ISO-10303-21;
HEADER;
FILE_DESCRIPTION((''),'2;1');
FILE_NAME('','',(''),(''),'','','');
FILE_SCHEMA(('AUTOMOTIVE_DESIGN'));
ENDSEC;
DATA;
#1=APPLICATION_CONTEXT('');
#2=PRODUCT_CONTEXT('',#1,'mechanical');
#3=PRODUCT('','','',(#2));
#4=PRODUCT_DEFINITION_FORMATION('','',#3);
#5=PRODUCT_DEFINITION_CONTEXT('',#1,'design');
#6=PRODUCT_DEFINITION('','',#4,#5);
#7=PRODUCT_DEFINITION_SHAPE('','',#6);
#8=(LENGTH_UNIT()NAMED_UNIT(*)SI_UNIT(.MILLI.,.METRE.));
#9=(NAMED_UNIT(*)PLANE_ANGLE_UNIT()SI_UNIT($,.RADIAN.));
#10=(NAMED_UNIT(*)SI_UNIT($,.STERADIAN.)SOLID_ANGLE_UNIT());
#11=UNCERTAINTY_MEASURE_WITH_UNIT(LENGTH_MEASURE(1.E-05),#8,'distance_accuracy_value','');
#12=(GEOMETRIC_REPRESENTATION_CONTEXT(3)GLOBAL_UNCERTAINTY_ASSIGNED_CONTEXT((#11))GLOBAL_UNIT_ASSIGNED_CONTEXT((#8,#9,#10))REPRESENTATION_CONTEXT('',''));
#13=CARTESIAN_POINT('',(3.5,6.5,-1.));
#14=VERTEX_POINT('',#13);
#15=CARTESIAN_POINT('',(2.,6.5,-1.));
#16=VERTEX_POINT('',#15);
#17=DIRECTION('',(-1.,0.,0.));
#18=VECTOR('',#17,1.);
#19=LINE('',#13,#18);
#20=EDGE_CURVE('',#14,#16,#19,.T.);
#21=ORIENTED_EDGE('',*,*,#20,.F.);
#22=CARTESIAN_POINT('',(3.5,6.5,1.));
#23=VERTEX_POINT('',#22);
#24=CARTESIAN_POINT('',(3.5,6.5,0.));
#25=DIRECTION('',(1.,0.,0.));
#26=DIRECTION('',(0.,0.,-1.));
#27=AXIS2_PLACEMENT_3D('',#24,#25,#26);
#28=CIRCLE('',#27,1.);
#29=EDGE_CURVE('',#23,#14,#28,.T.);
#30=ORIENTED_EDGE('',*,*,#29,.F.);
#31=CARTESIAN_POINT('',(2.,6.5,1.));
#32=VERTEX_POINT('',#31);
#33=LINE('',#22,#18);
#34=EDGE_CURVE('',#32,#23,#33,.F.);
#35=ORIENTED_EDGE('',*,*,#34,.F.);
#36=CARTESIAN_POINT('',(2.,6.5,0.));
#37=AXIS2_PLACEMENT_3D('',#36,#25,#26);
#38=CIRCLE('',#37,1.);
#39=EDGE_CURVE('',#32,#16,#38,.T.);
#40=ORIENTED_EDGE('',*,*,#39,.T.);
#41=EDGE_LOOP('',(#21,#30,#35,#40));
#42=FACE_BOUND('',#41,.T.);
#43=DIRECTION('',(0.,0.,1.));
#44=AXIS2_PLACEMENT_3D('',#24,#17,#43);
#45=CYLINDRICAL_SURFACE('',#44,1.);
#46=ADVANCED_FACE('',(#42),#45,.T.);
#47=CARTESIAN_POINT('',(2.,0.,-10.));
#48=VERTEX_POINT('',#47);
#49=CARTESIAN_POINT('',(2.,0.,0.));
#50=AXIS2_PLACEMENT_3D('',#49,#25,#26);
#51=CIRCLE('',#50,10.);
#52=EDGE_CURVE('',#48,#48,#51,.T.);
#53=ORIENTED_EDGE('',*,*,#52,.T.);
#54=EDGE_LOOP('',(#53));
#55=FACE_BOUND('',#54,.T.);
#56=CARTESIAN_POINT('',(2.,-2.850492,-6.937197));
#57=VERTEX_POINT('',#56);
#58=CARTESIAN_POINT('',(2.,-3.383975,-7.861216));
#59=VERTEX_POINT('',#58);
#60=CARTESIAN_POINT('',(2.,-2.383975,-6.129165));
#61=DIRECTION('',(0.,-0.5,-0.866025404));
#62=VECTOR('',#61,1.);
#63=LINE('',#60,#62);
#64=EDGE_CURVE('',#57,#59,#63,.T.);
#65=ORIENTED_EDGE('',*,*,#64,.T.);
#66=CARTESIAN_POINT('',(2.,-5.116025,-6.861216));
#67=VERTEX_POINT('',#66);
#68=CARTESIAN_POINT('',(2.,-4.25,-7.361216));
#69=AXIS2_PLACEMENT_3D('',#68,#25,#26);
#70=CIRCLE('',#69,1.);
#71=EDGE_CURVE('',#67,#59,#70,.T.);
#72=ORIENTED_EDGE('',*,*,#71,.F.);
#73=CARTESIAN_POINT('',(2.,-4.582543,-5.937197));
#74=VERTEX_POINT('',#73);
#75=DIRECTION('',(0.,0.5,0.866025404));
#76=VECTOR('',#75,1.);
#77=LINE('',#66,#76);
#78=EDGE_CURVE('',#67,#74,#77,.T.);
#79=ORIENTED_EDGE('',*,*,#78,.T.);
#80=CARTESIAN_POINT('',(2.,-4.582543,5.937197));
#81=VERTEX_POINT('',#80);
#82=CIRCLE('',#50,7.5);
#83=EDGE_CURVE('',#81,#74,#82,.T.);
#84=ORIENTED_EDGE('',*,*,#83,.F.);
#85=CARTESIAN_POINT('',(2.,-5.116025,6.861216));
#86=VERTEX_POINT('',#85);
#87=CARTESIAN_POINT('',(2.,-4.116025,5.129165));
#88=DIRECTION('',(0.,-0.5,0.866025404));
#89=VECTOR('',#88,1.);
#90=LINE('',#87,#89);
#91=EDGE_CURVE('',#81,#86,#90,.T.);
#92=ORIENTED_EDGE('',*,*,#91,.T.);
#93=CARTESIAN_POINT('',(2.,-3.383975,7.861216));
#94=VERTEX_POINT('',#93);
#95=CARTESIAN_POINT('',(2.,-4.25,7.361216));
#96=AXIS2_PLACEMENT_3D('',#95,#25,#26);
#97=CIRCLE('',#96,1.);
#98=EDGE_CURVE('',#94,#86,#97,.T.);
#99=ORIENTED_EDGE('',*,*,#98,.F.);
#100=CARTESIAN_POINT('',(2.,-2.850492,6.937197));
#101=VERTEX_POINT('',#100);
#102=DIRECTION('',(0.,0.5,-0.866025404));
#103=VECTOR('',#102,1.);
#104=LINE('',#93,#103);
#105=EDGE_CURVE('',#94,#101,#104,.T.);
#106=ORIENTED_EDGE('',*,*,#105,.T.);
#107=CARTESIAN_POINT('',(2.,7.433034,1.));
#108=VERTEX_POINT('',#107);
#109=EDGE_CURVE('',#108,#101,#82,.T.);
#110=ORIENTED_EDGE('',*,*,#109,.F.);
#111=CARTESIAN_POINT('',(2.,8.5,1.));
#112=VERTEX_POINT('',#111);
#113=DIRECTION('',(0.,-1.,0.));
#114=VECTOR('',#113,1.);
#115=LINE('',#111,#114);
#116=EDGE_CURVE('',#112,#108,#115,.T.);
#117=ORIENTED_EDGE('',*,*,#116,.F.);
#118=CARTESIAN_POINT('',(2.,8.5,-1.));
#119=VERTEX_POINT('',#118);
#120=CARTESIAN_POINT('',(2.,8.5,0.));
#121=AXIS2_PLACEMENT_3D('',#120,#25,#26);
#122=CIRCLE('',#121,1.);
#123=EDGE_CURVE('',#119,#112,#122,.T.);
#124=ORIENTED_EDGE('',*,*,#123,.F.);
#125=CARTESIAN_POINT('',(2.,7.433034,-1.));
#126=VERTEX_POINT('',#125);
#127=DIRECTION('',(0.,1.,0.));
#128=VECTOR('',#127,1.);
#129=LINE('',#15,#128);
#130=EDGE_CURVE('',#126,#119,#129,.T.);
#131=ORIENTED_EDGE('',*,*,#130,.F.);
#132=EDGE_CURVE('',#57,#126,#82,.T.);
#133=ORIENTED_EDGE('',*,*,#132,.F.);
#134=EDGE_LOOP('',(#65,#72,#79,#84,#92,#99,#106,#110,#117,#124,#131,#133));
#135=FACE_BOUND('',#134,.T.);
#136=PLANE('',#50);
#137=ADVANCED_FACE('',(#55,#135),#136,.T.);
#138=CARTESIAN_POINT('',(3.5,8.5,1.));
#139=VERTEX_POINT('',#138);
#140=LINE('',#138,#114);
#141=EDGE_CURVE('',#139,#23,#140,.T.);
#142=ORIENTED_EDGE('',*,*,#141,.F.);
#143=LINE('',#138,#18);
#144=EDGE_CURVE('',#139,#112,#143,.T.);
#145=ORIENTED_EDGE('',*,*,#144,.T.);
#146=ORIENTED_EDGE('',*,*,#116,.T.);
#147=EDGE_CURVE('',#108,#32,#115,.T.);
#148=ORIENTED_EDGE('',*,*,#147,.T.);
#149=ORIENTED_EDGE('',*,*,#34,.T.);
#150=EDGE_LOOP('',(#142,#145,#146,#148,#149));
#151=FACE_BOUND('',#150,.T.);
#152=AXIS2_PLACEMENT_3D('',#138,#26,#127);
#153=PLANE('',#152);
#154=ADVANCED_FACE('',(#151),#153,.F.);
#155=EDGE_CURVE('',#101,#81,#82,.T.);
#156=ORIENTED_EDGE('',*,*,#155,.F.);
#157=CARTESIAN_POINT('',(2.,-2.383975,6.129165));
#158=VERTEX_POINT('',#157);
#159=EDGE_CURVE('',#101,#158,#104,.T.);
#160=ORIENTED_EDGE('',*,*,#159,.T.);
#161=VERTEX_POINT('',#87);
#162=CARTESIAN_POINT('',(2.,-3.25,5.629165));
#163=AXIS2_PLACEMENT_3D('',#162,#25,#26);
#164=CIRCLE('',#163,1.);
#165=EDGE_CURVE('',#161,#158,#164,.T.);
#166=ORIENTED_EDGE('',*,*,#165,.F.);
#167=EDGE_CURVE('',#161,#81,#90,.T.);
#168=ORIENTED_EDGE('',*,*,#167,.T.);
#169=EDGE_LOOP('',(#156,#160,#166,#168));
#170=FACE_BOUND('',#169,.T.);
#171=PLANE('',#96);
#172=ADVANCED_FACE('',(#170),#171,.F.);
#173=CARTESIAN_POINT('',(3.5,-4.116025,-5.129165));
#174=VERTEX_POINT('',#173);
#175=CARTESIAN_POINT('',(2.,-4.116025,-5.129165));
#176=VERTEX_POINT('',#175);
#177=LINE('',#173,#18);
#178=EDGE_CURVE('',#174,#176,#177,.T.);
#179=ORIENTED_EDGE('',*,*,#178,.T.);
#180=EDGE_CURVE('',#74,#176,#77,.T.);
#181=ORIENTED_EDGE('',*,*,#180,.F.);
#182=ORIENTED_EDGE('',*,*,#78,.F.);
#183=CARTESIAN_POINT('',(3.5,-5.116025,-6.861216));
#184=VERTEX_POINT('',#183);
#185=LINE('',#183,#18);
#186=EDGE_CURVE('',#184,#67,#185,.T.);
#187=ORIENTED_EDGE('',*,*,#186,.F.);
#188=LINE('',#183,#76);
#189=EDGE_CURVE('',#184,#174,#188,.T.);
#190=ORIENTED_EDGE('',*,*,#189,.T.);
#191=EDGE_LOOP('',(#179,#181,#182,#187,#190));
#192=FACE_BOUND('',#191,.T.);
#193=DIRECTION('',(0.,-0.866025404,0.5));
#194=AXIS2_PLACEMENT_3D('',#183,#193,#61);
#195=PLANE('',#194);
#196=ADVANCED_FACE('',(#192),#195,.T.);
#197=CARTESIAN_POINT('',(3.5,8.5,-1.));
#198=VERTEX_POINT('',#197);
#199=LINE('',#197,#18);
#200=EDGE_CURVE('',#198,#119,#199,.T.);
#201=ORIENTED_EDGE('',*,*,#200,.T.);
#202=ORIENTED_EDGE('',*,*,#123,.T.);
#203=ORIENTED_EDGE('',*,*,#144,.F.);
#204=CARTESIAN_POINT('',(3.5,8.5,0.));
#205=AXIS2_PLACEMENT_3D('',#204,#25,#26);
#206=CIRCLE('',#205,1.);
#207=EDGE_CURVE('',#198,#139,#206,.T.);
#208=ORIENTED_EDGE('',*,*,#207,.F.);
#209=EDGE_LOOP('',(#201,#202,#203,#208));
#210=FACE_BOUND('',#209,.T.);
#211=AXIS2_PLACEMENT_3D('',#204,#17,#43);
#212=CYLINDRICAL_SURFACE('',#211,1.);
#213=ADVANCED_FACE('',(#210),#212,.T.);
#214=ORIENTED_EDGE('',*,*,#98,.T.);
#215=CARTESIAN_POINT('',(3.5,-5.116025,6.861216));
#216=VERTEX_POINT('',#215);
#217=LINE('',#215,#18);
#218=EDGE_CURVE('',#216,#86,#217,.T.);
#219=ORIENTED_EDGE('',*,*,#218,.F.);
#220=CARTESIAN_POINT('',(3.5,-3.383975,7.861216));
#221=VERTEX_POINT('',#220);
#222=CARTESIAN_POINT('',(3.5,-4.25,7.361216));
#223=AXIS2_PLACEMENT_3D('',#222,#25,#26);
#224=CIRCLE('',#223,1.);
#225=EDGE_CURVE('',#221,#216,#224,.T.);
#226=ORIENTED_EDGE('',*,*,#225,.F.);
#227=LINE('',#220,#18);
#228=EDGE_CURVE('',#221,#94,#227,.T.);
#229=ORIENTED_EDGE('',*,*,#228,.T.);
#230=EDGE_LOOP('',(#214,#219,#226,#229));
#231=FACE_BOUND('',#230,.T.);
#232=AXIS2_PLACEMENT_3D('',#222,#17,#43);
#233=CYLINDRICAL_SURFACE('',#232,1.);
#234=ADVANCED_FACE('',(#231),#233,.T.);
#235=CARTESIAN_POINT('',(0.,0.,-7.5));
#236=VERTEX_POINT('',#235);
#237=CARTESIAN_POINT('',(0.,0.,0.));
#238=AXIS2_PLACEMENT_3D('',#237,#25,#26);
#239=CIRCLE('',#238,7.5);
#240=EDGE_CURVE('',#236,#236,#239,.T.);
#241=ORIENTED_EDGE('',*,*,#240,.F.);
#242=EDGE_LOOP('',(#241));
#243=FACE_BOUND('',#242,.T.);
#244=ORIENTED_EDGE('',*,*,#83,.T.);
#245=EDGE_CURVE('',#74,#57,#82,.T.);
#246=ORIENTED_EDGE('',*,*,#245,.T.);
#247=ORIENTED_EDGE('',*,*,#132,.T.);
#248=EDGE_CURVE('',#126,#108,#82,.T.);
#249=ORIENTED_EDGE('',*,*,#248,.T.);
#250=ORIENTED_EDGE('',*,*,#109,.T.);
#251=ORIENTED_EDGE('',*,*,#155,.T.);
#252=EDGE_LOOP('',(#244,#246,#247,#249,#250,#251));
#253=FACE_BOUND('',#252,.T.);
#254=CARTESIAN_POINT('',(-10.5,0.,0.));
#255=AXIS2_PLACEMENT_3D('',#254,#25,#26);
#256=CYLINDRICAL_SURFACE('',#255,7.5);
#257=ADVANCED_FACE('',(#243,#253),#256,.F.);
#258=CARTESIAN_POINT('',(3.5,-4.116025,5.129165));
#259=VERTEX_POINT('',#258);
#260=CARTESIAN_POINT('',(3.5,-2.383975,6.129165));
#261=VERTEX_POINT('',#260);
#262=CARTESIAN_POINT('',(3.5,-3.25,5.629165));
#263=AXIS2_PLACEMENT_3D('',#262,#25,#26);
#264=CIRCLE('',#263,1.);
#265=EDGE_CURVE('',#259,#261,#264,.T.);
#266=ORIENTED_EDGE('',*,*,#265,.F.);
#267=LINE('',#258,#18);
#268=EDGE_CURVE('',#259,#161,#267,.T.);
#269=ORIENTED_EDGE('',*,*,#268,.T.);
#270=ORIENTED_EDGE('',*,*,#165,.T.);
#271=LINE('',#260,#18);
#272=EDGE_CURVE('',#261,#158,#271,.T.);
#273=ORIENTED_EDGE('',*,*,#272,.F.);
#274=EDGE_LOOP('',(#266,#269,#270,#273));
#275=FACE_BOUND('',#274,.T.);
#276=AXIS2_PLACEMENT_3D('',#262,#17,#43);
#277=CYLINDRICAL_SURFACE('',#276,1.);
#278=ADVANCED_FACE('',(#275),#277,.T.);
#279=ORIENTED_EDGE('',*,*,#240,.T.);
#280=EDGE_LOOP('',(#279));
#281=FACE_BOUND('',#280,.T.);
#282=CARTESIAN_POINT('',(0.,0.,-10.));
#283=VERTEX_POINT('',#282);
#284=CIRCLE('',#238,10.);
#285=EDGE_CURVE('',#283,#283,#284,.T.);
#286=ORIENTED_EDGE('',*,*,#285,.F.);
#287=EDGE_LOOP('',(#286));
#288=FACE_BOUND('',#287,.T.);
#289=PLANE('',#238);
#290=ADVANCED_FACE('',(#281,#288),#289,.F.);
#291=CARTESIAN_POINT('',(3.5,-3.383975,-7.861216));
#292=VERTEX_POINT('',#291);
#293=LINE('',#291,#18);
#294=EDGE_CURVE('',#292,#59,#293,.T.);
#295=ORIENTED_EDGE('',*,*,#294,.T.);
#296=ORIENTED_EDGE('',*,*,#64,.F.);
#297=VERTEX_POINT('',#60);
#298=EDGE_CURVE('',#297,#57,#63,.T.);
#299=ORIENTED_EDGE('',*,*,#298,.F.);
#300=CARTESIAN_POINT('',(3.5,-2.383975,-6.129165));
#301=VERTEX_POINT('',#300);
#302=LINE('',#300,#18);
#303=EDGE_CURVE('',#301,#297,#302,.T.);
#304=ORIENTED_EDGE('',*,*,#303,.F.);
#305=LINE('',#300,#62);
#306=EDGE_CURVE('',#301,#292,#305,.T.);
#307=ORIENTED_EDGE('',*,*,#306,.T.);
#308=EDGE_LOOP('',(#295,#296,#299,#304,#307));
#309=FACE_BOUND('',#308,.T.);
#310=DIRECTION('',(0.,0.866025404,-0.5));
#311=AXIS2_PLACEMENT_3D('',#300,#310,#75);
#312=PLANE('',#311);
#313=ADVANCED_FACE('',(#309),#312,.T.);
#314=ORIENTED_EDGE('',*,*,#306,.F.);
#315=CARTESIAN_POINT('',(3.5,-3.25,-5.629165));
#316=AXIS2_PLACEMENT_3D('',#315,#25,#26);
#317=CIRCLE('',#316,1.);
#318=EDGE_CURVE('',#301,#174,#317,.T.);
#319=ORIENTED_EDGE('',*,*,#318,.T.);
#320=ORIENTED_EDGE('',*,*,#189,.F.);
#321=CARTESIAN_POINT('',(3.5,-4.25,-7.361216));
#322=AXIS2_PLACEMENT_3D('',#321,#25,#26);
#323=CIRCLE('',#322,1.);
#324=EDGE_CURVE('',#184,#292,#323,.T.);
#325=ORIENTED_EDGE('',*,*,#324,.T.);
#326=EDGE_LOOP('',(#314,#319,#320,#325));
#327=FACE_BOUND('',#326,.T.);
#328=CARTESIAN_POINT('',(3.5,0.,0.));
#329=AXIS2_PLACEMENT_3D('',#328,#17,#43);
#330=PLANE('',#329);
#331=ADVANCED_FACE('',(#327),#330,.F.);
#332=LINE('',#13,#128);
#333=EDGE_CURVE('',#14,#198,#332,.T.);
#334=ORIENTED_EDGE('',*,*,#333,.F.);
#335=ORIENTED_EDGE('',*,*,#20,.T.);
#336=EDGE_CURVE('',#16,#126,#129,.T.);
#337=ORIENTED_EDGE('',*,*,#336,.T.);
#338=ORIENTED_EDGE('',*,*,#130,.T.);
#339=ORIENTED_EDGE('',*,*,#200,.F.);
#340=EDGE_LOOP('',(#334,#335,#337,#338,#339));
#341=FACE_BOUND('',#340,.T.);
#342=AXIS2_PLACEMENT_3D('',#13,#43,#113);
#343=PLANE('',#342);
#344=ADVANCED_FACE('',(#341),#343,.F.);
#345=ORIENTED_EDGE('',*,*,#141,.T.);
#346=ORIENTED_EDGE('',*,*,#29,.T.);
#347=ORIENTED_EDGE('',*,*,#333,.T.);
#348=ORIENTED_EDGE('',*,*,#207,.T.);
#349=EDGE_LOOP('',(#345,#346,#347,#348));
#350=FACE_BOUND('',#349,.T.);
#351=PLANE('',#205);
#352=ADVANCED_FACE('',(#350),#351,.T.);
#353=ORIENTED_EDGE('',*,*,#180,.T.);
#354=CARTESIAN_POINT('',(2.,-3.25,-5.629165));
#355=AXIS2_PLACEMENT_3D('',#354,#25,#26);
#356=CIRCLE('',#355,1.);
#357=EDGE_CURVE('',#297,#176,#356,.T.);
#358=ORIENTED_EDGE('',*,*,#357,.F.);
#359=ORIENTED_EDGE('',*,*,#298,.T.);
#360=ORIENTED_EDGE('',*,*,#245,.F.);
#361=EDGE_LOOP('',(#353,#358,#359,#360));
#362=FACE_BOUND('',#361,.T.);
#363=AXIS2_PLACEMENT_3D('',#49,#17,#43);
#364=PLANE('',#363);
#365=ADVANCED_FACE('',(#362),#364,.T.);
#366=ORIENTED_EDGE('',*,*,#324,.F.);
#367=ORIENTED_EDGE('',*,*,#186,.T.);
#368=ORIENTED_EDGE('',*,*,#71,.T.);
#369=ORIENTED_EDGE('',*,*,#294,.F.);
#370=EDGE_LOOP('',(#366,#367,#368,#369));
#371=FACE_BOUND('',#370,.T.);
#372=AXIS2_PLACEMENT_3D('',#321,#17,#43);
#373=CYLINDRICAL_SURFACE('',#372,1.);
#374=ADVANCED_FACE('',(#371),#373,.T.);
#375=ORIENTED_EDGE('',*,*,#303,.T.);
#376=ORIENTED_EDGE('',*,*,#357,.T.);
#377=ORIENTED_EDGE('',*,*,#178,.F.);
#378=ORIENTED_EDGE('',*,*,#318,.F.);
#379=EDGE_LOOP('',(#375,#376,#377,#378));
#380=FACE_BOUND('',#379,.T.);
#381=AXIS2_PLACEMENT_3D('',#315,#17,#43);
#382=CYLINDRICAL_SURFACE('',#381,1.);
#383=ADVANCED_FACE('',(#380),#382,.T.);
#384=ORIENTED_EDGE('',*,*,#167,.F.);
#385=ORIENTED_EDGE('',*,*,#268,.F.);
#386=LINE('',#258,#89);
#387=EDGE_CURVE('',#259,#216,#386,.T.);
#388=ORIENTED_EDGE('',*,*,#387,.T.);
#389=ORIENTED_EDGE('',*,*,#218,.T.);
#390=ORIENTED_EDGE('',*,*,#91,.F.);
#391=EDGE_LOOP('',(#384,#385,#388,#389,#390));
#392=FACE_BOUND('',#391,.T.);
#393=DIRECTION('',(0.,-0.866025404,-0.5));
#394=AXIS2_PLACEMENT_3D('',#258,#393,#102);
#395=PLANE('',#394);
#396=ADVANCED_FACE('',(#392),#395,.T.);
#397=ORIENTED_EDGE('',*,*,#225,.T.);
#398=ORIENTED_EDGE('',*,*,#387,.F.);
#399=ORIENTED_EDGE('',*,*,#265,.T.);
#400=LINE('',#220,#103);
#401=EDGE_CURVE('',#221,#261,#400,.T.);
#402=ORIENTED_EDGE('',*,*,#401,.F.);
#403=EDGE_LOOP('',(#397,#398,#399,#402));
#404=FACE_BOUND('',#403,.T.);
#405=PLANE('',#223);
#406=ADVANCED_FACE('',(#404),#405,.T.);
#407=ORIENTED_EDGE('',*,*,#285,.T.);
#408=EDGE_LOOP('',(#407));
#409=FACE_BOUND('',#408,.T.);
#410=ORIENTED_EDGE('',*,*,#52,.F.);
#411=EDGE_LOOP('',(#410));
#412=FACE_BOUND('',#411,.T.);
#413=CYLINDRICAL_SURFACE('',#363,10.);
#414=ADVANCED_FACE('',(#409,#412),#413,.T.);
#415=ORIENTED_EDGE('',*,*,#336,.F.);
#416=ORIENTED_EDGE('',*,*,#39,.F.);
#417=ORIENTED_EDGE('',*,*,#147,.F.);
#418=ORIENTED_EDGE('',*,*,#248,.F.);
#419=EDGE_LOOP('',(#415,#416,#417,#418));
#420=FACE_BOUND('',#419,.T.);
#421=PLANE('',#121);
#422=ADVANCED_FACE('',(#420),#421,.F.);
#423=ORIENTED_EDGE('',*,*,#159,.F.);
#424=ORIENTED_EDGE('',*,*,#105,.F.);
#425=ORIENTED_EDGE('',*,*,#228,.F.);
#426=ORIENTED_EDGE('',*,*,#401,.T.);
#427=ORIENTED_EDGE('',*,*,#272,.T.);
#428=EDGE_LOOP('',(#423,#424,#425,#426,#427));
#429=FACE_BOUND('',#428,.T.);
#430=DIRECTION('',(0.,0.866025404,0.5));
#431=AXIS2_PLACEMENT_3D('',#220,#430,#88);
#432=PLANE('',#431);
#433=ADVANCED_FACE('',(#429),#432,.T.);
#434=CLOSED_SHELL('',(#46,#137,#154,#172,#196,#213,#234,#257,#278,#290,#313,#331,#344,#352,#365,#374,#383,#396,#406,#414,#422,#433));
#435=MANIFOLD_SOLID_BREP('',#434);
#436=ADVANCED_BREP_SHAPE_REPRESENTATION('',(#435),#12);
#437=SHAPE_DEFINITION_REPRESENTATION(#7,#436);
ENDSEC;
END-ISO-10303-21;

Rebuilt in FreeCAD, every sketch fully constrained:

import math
import FreeCAD as App
import Part
import Sketcher
Q = App.Units.Quantity

doc = App.newDocument("Part")
body = doc.addObject("PartDesign::Body", "Body")

# Sketch on YZ plane
sketch1 = body.newObject("Sketcher::SketchObject", "Sketch")
sketch1.AttachmentSupport = (doc.getObject("YZ_Plane"), [""])
sketch1.MapMode = "FlatFace"
sketch1.addGeometry(Part.Circle(App.Vector(0, 0, 0), App.Vector(0, 0, 1), 10), False)
sketch1.addConstraint([
    Sketcher.Constraint("Coincident", 0, 3, -1, 1),
    Sketcher.Constraint("Diameter", 0, Q("20 mm")),
])
pad1 = body.newObject("PartDesign::Pad", "Pad")
pad1.Profile = sketch1
pad1.Length = 2

# Sketch on YZ plane
sketch2 = body.newObject("Sketcher::SketchObject", "Sketch001")
sketch2.AttachmentSupport = (doc.getObject("YZ_Plane"), [""])
sketch2.MapMode = "FlatFace"
sketch2.AttachmentOffset = App.Placement(App.Vector(0, 0, 2), App.Rotation())
sketch2.addGeometry(Part.Circle(App.Vector(0, 0, 0), App.Vector(0, 0, 1), 8), False)
sketch2.addConstraint([
    Sketcher.Constraint("Coincident", 0, 3, -1, 1),
    Sketcher.Constraint("Diameter", 0, Q("15 mm")),
])
pocket1 = body.newObject("PartDesign::Pocket", "Pocket")
pocket1.Profile = sketch2
pocket1.Length = 12.5

# Sketch on YZ plane
sketch3 = body.newObject("Sketcher::SketchObject", "Sketch002")
sketch3.AttachmentSupport = (doc.getObject("YZ_Plane"), [""])
sketch3.MapMode = "FlatFace"
sketch3.AttachmentOffset = App.Placement(App.Vector(0, 0, 2), App.Rotation())
sketch3.addGeometry([
    Part.LineSegment(App.Vector(8.5, 1, 0), App.Vector(6.5, 1, 0)),  # 0
    Part.ArcOfCircle(Part.Circle(App.Vector(6.5, 0, 0), App.Vector(0, 0, 1), 1), math.radians(90), math.radians(270)),  # 1
    Part.LineSegment(App.Vector(6.5, -1, 0), App.Vector(8.5, -1, 0)),  # 2
    Part.ArcOfCircle(Part.Circle(App.Vector(8.5, 0, 0), App.Vector(0, 0, 1), 1), math.radians(-90), math.radians(90)),  # 3
    Part.LineSegment(App.Vector(-3.4, -7.9, 0), App.Vector(-2.4, -6.1, 0)),  # 4
    Part.ArcOfCircle(Part.Circle(App.Vector(-3.2, -5.6, 0), App.Vector(0, 0, 1), 1), math.radians(-30), math.radians(150)),  # 5
    Part.LineSegment(App.Vector(-4.1, -5.1, 0), App.Vector(-5.1, -6.9, 0)),  # 6
    Part.ArcOfCircle(Part.Circle(App.Vector(-4.2, -7.4, 0), App.Vector(0, 0, 1), 1), math.radians(150), math.radians(330)),  # 7
    Part.LineSegment(App.Vector(-5.1, 6.9, 0), App.Vector(-4.1, 5.1, 0)),  # 8
    Part.ArcOfCircle(Part.Circle(App.Vector(-3.2, 5.6, 0), App.Vector(0, 0, 1), 1), math.radians(-150), math.radians(30)),  # 9
    Part.LineSegment(App.Vector(-2.4, 6.1, 0), App.Vector(-3.4, 7.9, 0)),  # 10
    Part.ArcOfCircle(Part.Circle(App.Vector(-4.2, 7.4, 0), App.Vector(0, 0, 1), 1), math.radians(30), math.radians(210)),  # 11
], False)
sketch3.addConstraint([
    Sketcher.Constraint("Tangent", 0, 2, 1, 1),
    Sketcher.Constraint("Tangent", 1, 2, 2, 1),
    Sketcher.Constraint("Tangent", 2, 2, 3, 1),
    Sketcher.Constraint("Tangent", 3, 2, 0, 1),
    Sketcher.Constraint("Tangent", 4, 2, 5, 1),
    Sketcher.Constraint("Tangent", 5, 2, 6, 1),
    Sketcher.Constraint("Tangent", 6, 2, 7, 1),
    Sketcher.Constraint("Tangent", 7, 2, 4, 1),
    Sketcher.Constraint("Tangent", 8, 2, 9, 1),
    Sketcher.Constraint("Tangent", 9, 2, 10, 1),
    Sketcher.Constraint("Tangent", 10, 2, 11, 1),
    Sketcher.Constraint("Tangent", 11, 2, 8, 1),
    Sketcher.Constraint("Horizontal", 0),
    Sketcher.Constraint("Horizontal", 2),
    Sketcher.Constraint("Equal", 3, 5),
    Sketcher.Constraint("Equal", 5, 7),
    Sketcher.Constraint("Equal", 7, 9),
    Sketcher.Constraint("Equal", 9, 11),
    Sketcher.Constraint("Symmetric", 5, 3, 9, 3, -1),
    Sketcher.Constraint("Symmetric", 7, 3, 11, 3, -1),
    Sketcher.Constraint("PointOnObject", 1, 3, -1),
    Sketcher.Constraint("Radius", 1, Q("1 mm")),
    Sketcher.Constraint("DistanceX", 0, 2, 0, 1, Q("2 mm")),
    Sketcher.Constraint("Angle", 4, Q("60 deg")),
    Sketcher.Constraint("Distance", 4, Q("2 mm")),
    Sketcher.Constraint("DistanceX", -1, 1, 1, 3, Q("6.5 mm")),
    Sketcher.Constraint("DistanceX", 5, 3, -1, 1, Q("3.25 mm")),
    Sketcher.Constraint("DistanceY", 5, 3, 9, 3, Q("11.25833 mm")),
])
pad2 = body.newObject("PartDesign::Pad", "Pad001")
pad2.Profile = sketch3
pad2.Length = 1.5

doc.recompute()
